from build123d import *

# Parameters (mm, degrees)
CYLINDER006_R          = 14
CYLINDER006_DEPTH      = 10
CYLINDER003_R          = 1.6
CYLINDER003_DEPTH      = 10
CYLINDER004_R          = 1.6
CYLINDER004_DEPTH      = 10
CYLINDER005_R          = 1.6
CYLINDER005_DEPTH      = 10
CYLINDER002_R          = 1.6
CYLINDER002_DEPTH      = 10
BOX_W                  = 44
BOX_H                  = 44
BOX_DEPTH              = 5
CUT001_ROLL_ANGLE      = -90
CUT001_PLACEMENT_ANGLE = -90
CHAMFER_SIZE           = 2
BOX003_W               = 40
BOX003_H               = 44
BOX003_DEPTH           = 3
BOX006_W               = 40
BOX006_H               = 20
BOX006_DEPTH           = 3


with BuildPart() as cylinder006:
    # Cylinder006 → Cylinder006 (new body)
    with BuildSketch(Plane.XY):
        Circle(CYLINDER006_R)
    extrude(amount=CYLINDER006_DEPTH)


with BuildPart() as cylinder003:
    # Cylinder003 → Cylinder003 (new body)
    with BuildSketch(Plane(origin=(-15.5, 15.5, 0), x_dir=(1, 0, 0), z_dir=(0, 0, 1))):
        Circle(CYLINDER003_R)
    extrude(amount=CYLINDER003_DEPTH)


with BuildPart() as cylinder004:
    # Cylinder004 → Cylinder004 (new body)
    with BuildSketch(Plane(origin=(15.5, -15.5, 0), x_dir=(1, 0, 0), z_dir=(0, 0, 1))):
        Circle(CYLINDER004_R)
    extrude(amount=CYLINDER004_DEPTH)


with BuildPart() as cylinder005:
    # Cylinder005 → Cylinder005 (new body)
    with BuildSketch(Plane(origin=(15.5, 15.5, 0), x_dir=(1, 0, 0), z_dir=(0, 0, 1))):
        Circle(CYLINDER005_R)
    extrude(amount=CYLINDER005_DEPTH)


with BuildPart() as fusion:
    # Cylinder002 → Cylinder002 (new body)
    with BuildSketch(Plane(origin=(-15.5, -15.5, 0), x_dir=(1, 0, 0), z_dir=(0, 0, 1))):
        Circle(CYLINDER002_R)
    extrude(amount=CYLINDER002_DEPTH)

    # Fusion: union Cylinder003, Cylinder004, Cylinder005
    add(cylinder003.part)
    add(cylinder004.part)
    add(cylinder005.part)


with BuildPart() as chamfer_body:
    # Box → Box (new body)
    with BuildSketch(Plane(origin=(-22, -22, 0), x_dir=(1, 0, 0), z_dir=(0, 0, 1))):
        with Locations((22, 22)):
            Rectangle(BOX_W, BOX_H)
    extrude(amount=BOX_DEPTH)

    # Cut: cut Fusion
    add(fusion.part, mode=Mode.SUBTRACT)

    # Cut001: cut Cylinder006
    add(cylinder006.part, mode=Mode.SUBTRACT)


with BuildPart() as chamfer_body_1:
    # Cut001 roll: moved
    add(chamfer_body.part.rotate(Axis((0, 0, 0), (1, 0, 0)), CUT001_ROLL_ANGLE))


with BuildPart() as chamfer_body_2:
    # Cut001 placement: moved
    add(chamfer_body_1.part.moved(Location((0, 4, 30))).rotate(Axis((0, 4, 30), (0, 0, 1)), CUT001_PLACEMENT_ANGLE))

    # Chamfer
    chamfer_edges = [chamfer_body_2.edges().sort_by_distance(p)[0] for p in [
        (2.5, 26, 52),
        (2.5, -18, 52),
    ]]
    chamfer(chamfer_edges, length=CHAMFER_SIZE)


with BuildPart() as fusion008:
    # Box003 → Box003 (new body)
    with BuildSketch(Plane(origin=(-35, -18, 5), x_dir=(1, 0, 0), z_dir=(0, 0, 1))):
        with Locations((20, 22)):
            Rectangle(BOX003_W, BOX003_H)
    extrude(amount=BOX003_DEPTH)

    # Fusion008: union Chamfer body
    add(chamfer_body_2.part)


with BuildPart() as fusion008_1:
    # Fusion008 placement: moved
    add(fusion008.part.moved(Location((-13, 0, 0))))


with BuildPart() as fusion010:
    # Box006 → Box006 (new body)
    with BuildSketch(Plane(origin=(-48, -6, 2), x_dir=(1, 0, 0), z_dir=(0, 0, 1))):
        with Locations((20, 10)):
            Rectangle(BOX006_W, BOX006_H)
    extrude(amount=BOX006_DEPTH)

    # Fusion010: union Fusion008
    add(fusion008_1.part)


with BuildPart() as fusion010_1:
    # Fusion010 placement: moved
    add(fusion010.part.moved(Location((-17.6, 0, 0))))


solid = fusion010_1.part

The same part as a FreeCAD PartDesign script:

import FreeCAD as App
import Part
import Sketcher


def edges_at(feature, points):
    """Names of the edges that pass closest to the given points."""
    edges = feature.Shape.Edges
    near = lambda p: min(range(len(edges)), key=lambda i: edges[i].distToShape(Part.Vertex(*p))[0])
    return sorted({f"Edge{near(p) + 1}" for p in points})


def add_polygon(sketch, points):
    """Adds a closed chain of lines whose ends are joined by coincident constraints."""
    first, n = sketch.GeometryCount, len(points)
    for a, b in zip(points, points[1:] + points[:1]):
        sketch.addGeometry(Part.LineSegment(App.Vector(*a, 0), App.Vector(*b, 0)), False)
    for i in range(n):
        sketch.addConstraint(Sketcher.Constraint("Coincident", first + i, 2, first + (i + 1) % n, 1))

doc = App.newDocument("Part")
body = doc.addObject("PartDesign::Body", "Body")

sketch1 = body.newObject("Sketcher::SketchObject", "Sketch")
sketch1.AttachmentSupport = (doc.getObject("XY_Plane"), [""])
sketch1.MapMode = "FlatFace"
sketch1.addGeometry(Part.Circle(App.Vector(0, 0, 0), App.Vector(0, 0, 1), 14), False)
sketch1.addConstraint(Sketcher.Constraint("Coincident", 0, 3, -1, 1))
sketch1.addConstraint(Sketcher.Constraint("Diameter", 0, 28.0))
pad1 = body.newObject("PartDesign::Pad", "Pad")
pad1.Profile = sketch1
pad1.Length = 10
body2 = doc.addObject("PartDesign::Body", "Body001")

sketch2 = body2.newObject("Sketcher::SketchObject", "Sketch001")
sketch2.AttachmentSupport = (doc.getObject("XY_Plane001"), [""])
sketch2.MapMode = "FlatFace"
sketch2.addGeometry(Part.Circle(App.Vector(-15.5, 15.5, 0), App.Vector(0, 0, 1), 1.6), False)
sketch2.addConstraint(Sketcher.Constraint("Diameter", 0, 3.2))
sketch2.addConstraint(Sketcher.Constraint("DistanceX", 0, 3, -1, 1, 15.5))
sketch2.addConstraint(Sketcher.Constraint("DistanceY", -1, 1, 0, 3, 15.5))
pad2 = body2.newObject("PartDesign::Pad", "Pad001")
pad2.Profile = sketch2
pad2.Length = 10
body3 = doc.addObject("PartDesign::Body", "Body002")

sketch3 = body3.newObject("Sketcher::SketchObject", "Sketch002")
sketch3.AttachmentSupport = (doc.getObject("XY_Plane002"), [""])
sketch3.MapMode = "FlatFace"
sketch3.addGeometry(Part.Circle(App.Vector(15.5, -15.5, 0), App.Vector(0, 0, 1), 1.6), False)
sketch3.addConstraint(Sketcher.Constraint("Diameter", 0, 3.2))
sketch3.addConstraint(Sketcher.Constraint("DistanceX", -1, 1, 0, 3, 15.5))
sketch3.addConstraint(Sketcher.Constraint("DistanceY", 0, 3, -1, 1, 15.5))
pad3 = body3.newObject("PartDesign::Pad", "Pad002")
pad3.Profile = sketch3
pad3.Length = 10
body4 = doc.addObject("PartDesign::Body", "Body003")

sketch4 = body4.newObject("Sketcher::SketchObject", "Sketch003")
sketch4.AttachmentSupport = (doc.getObject("XY_Plane003"), [""])
sketch4.MapMode = "FlatFace"
sketch4.addGeometry(Part.Circle(App.Vector(15.5, 15.5, 0), App.Vector(0, 0, 1), 1.6), False)
sketch4.addConstraint(Sketcher.Constraint("Diameter", 0, 3.2))
sketch4.addConstraint(Sketcher.Constraint("DistanceX", -1, 1, 0, 3, 15.5))
sketch4.addConstraint(Sketcher.Constraint("DistanceY", -1, 1, 0, 3, 15.5))
pad4 = body4.newObject("PartDesign::Pad", "Pad003")
pad4.Profile = sketch4
pad4.Length = 10
body5 = doc.addObject("PartDesign::Body", "Body004")
body5.AllowCompound = True

sketch5 = body5.newObject("Sketcher::SketchObject", "Sketch004")
sketch5.AttachmentSupport = (doc.getObject("XY_Plane004"), [""])
sketch5.MapMode = "FlatFace"
sketch5.addGeometry(Part.Circle(App.Vector(-15.5, -15.5, 0), App.Vector(0, 0, 1), 1.6), False)
sketch5.addConstraint(Sketcher.Constraint("Diameter", 0, 3.2))
sketch5.addConstraint(Sketcher.Constraint("DistanceX", 0, 3, -1, 1, 15.5))
sketch5.addConstraint(Sketcher.Constraint("DistanceY", 0, 3, -1, 1, 15.5))
pad5 = body5.newObject("PartDesign::Pad", "Pad004")
pad5.Profile = sketch5
pad5.Length = 10
doc.recompute()

boolean = body5.newObject("PartDesign::Boolean", "Boolean")
boolean.Type = "Fuse"
boolean.addObjects([body2])
doc.recompute()

boolean2 = body5.newObject("PartDesign::Boolean", "Boolean001")
boolean2.Type = "Fuse"
boolean2.addObjects([body3])
doc.recompute()

boolean3 = body5.newObject("PartDesign::Boolean", "Boolean002")
boolean3.Type = "Fuse"
boolean3.addObjects([body4])
body6 = doc.addObject("PartDesign::Body", "Body005")

sketch6 = body6.newObject("Sketcher::SketchObject", "Sketch005")
sketch6.AttachmentSupport = (doc.getObject("XY_Plane005"), [""])
sketch6.MapMode = "FlatFace"
add_polygon(sketch6, [(-22, 22), (-22, -22), (22, -22), (22, 22)])
sketch6.addConstraint(Sketcher.Constraint("Vertical", 0))
sketch6.addConstraint(Sketcher.Constraint("Horizontal", 1))
sketch6.addConstraint(Sketcher.Constraint("Vertical", 2))
sketch6.addConstraint(Sketcher.Constraint("Horizontal", 3))
sketch6.addConstraint(Sketcher.Constraint("Symmetric", 0, 2, 2, 2, -1, 1))
sketch6.addConstraint(Sketcher.Constraint("Equal", 3, 0))
sketch6.addConstraint(Sketcher.Constraint("DistanceX", 1, 1, 1, 2, 44.0))
pad6 = body6.newObject("PartDesign::Pad", "Pad005")
pad6.Profile = sketch6
pad6.Length = 5
doc.recompute()

boolean4 = body6.newObject("PartDesign::Boolean", "Boolean003")
boolean4.Type = "Cut"
boolean4.addObjects([body5])
doc.recompute()

boolean5 = body6.newObject("PartDesign::Boolean", "Boolean004")
boolean5.Type = "Cut"
boolean5.addObjects([body])
body7 = doc.addObject("PartDesign::Body", "Body006")
doc.recompute()

body6.Placement = App.Placement(App.Vector(0, 0, 0), App.Rotation(App.Vector(1, 0, 0), 270))
boolean6 = body7.newObject("PartDesign::Boolean", "Boolean005")
boolean6.Type = "Fuse"
boolean6.addObjects([body6])
body8 = doc.addObject("PartDesign::Body", "Body007")
doc.recompute()

body7.Placement = App.Placement(App.Vector(0, 4, 30), App.Rotation(App.Vector(0, 0, 1), 270))
boolean7 = body8.newObject("PartDesign::Boolean", "Boolean006")
boolean7.Type = "Fuse"
boolean7.addObjects([body7])
doc.recompute()

chamfer = body8.newObject("PartDesign::Chamfer", "Chamfer")
chamfer.Base = (boolean7, edges_at(boolean7, [(2.5, 26, 52), (2.5, -18, 52)]))
chamfer.Size = 2
body9 = doc.addObject("PartDesign::Body", "Body008")

sketch7 = body9.newObject("Sketcher::SketchObject", "Sketch006")
sketch7.AttachmentSupport = (doc.getObject("XY_Plane008"), [""])
sketch7.MapMode = "FlatFace"
sketch7.AttachmentOffset = App.Placement(App.Vector(0, 0, 5), App.Rotation())
add_polygon(sketch7, [(-35, 26), (-35, -18), (5, -18), (5, 26)])
sketch7.addConstraint(Sketcher.Constraint("Vertical", 0))
sketch7.addConstraint(Sketcher.Constraint("Horizontal", 1))
sketch7.addConstraint(Sketcher.Constraint("Vertical", 2))
sketch7.addConstraint(Sketcher.Constraint("Horizontal", 3))
sketch7.addConstraint(Sketcher.Constraint("DistanceX", 1, 1, 1, 2, 40.0))
sketch7.addConstraint(Sketcher.Constraint("DistanceY", 0, 2, 0, 1, 44.0))
sketch7.addConstraint(Sketcher.Constraint("DistanceX", 0, 2, -1, 1, 35.0))
sketch7.addConstraint(Sketcher.Constraint("DistanceY", 0, 2, -1, 1, 18.0))
pad7 = body9.newObject("PartDesign::Pad", "Pad006")
pad7.Profile = sketch7
pad7.Length = 3
doc.recompute()

boolean8 = body9.newObject("PartDesign::Boolean", "Boolean007")
boolean8.Type = "Fuse"
boolean8.addObjects([body8])
body10 = doc.addObject("PartDesign::Body", "Body009")
doc.recompute()

body9.Placement = App.Placement(App.Vector(-13, 0, 0), App.Rotation(App.Vector(0, 0, 1), 0))
boolean9 = body10.newObject("PartDesign::Boolean", "Boolean008")
boolean9.Type = "Fuse"
boolean9.addObjects([body9])
body11 = doc.addObject("PartDesign::Body", "Body010")

sketch8 = body11.newObject("Sketcher::SketchObject", "Sketch007")
sketch8.AttachmentSupport = (doc.getObject("XY_Plane010"), [""])
sketch8.MapMode = "FlatFace"
sketch8.AttachmentOffset = App.Placement(App.Vector(0, 0, 2), App.Rotation())
add_polygon(sketch8, [(-48, 14), (-48, -6), (-8, -6), (-8, 14)])
sketch8.addConstraint(Sketcher.Constraint("Vertical", 0))
sketch8.addConstraint(Sketcher.Constraint("Horizontal", 1))
sketch8.addConstraint(Sketcher.Constraint("Vertical", 2))
sketch8.addConstraint(Sketcher.Constraint("Horizontal", 3))
sketch8.addConstraint(Sketcher.Constraint("DistanceX", 1, 1, 1, 2, 40.0))
sketch8.addConstraint(Sketcher.Constraint("DistanceY", 0, 2, 0, 1, 20.0))
sketch8.addConstraint(Sketcher.Constraint("DistanceX", 0, 2, -1, 1, 48.0))
sketch8.addConstraint(Sketcher.Constraint("DistanceY", 0, 2, -1, 1, 6.0))
pad8 = body11.newObject("PartDesign::Pad", "Pad007")
pad8.Profile = sketch8
pad8.Length = 3
doc.recompute()

boolean10 = body11.newObject("PartDesign::Boolean", "Boolean009")
boolean10.Type = "Fuse"
boolean10.addObjects([body10])
body12 = doc.addObject("PartDesign::Body", "Body011")
doc.recompute()

body11.Placement = App.Placement(App.Vector(-17.6, 0, 0), App.Rotation(App.Vector(0, 0, 1), 0))
boolean11 = body12.newObject("PartDesign::Boolean", "Boolean010")
boolean11.Type = "Fuse"
boolean11.addObjects([body11])

doc.recompute()
